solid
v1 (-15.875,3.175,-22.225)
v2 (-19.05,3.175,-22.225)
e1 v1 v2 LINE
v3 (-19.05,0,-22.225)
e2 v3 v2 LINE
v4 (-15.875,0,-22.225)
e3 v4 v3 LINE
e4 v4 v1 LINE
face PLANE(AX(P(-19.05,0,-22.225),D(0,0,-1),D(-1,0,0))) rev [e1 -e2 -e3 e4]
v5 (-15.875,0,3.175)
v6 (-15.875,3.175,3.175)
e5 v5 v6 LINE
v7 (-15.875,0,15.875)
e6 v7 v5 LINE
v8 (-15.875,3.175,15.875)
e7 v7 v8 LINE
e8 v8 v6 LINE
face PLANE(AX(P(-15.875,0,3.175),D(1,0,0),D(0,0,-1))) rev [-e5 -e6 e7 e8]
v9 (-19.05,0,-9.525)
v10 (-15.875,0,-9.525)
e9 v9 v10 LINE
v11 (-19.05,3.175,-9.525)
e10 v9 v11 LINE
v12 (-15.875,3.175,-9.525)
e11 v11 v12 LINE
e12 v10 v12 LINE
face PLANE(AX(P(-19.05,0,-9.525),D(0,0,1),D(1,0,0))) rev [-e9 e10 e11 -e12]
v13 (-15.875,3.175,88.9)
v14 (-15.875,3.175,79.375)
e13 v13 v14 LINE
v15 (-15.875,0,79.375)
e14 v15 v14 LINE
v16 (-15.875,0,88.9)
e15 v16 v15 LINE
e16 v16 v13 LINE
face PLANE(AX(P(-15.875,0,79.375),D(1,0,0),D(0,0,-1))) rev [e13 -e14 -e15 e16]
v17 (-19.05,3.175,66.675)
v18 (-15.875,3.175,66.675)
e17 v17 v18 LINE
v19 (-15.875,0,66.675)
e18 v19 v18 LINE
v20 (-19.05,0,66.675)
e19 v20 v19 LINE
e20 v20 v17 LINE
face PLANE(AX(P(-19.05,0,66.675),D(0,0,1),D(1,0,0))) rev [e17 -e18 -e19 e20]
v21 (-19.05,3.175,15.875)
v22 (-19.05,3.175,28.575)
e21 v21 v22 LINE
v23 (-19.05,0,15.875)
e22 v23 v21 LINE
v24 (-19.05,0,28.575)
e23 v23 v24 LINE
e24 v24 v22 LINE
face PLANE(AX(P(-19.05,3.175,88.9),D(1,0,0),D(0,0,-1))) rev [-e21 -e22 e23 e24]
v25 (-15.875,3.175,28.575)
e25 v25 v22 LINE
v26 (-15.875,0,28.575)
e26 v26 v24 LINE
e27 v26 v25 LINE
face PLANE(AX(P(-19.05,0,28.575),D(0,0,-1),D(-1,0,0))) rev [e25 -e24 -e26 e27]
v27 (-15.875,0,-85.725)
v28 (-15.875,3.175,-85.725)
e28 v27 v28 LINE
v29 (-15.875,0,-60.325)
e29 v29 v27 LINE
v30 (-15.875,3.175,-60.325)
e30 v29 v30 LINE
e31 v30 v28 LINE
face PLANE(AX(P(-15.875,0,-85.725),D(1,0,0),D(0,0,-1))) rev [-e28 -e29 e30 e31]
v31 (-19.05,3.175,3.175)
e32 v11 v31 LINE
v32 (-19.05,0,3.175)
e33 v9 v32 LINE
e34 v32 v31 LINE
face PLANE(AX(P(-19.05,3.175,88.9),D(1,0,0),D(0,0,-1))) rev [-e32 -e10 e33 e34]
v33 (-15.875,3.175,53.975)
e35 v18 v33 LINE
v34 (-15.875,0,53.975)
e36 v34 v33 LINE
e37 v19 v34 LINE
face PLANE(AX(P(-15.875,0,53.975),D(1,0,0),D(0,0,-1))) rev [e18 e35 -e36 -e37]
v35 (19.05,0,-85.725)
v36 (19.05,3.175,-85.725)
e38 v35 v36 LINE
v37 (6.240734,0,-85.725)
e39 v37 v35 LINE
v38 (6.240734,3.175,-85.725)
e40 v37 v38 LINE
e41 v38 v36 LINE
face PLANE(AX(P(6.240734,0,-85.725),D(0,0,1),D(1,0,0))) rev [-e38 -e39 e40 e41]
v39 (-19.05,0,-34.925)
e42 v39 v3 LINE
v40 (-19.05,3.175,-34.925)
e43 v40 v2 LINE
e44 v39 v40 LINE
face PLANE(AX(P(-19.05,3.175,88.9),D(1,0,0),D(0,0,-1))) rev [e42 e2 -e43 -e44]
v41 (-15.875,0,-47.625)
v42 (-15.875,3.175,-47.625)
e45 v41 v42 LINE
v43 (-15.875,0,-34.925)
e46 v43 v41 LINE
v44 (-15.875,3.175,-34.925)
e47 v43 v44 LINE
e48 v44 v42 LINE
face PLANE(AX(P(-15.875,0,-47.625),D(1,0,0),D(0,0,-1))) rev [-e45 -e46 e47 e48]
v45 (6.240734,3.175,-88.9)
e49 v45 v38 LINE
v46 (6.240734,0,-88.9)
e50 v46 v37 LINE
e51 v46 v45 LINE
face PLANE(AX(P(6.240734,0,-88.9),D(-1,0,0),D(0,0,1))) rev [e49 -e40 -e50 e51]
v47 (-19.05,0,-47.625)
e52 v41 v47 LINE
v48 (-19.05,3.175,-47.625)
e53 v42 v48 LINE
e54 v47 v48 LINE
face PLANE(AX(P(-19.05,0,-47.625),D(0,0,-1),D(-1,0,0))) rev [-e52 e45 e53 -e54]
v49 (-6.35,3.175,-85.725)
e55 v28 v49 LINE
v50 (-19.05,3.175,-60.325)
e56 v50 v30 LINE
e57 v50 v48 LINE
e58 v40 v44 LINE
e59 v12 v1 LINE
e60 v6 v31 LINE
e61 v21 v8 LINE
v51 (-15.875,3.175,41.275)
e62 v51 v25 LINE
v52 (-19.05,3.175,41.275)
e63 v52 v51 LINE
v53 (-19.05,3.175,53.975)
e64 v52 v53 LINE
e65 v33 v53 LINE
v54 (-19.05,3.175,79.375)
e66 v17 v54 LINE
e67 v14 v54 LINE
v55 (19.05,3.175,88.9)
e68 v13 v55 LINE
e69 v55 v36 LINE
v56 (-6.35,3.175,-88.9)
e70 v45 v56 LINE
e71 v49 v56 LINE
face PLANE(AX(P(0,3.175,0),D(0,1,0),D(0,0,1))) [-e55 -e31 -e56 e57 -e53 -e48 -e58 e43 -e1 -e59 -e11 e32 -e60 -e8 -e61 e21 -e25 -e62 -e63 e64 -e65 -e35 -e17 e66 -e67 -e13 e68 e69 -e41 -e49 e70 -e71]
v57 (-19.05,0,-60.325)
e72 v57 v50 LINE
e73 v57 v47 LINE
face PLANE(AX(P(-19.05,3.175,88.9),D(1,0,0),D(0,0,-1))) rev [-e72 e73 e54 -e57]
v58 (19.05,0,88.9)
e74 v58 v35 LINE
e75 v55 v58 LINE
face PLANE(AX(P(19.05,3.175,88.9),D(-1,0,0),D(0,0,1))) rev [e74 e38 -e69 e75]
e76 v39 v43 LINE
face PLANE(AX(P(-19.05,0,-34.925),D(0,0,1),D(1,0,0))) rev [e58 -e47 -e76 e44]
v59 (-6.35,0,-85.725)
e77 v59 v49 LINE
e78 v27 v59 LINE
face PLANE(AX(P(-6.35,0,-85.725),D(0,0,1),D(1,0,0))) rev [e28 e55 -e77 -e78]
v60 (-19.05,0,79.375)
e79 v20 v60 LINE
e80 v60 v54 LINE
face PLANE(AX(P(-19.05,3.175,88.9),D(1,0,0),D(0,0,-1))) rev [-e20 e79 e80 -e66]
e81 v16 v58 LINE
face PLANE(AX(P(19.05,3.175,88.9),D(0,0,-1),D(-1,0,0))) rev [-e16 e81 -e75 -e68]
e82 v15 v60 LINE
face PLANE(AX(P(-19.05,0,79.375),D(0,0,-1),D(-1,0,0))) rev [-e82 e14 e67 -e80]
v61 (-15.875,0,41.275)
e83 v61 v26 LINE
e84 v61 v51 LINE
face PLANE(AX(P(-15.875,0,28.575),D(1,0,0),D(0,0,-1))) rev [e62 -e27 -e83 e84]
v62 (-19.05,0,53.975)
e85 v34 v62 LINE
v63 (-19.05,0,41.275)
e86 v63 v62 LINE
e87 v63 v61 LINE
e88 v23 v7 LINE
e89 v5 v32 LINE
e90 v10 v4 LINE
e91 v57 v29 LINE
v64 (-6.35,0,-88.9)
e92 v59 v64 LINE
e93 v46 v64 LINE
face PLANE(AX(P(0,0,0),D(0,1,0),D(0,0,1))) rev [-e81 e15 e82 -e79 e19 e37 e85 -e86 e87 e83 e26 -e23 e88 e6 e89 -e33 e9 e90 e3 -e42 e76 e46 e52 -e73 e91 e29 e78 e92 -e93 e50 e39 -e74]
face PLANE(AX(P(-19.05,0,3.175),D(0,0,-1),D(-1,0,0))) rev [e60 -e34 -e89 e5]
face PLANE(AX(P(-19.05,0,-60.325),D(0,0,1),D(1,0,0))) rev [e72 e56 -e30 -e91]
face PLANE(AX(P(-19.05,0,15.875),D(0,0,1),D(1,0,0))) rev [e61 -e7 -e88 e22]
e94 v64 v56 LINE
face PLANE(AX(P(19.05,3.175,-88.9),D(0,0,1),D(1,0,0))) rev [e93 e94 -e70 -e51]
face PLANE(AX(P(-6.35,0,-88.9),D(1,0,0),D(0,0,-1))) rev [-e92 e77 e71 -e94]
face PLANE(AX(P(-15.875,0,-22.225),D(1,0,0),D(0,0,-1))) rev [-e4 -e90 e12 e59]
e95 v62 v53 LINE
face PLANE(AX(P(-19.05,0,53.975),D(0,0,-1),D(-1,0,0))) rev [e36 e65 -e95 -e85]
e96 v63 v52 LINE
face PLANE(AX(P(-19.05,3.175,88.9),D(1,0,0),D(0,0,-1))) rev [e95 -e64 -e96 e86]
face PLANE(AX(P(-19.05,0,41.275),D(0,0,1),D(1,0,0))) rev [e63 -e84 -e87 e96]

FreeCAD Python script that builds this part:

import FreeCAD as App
import Part
import Sketcher

V = App.Vector
Q = App.Units.Quantity

doc = App.newDocument("Part")
body = doc.addObject("PartDesign::Body", "Body")

# Sketch on XZ plane
sketch1 = body.newObject("Sketcher::SketchObject", "Sketch")
sketch1.AttachmentSupport = (doc.getObject("XZ_Plane"), [""])
sketch1.MapMode = "FlatFace"
sketch1.addGeometry([
    Part.LineSegment(V(-19, -89, 0), V(-19, 89, 0)),
    Part.LineSegment(V(-19, 89, 0), V(19, 89, 0)),
    Part.LineSegment(V(19, 89, 0), V(19, -89, 0)),
    Part.LineSegment(V(19, -89, 0), V(-19, -89, 0)),
], False)
sketch1.addConstraint([
    Sketcher.Constraint("Coincident", 0, 2, 1, 1),
    Sketcher.Constraint("Coincident", 1, 2, 2, 1),
    Sketcher.Constraint("Coincident", 2, 2, 3, 1),
    Sketcher.Constraint("Coincident", 3, 2, 0, 1),
    Sketcher.Constraint("Vertical", 0),
    Sketcher.Constraint("Horizontal", 1),
    Sketcher.Constraint("Vertical", 2),
    Sketcher.Constraint("Horizontal", 3),
    Sketcher.Constraint("Symmetric", 0, 2, 2, 2, -1, 1),
    Sketcher.Constraint("DistanceY", 0, 1, 0, 2, Q("7 in")),
    Sketcher.Constraint("DistanceX", 1, 1, 1, 2, Q("1.5 in")),
])
pad1 = body.newObject("PartDesign::Pad", "Pad")
pad1.Profile = sketch1
pad1.Length = Q("0.125 in")
pad1.Reversed = True

# Sketch on XZ plane
sketch2 = body.newObject("Sketcher::SketchObject", "Sketch001")
sketch2.AttachmentSupport = (doc.getObject("XZ_Plane"), [""])
sketch2.MapMode = "FlatFace"
sketch2.AttachmentOffset = App.Placement(V(0, 0, -0.125 * 25.4), App.Rotation())
sketch2.addGeometry([
    Part.LineSegment(V(-6.3, -85.7, 0), V(-6.3, -88.9, 0)),  # 0
    Part.LineSegment(V(-6.3, -88.9, 0), V(-19.1, -88.9, 0)),  # 1
    Part.LineSegment(V(-19.1, -88.9, 0), V(-19.1, -60.3, 0)),  # 2
    Part.LineSegment(V(-19.1, -60.3, 0), V(-15.9, -60.3, 0)),  # 3
    Part.LineSegment(V(-15.9, -60.3, 0), V(-15.9, -85.7, 0)),  # 4
    Part.LineSegment(V(-15.9, -85.7, 0), V(-6.3, -85.7, 0)),  # 5
    Part.LineSegment(V(-19.1, -22.2, 0), V(-19.1, -9.5, 0)),  # 6
    Part.LineSegment(V(-19.1, -9.5, 0), V(-15.9, -9.5, 0)),  # 7
    Part.LineSegment(V(-15.9, -9.5, 0), V(-15.9, -22.2, 0)),  # 8
    Part.LineSegment(V(-15.9, -22.2, 0), V(-19.1, -22.2, 0)),  # 9
    Part.LineSegment(V(-19.1, -47.6, 0), V(-19.1, -34.9, 0)),  # 10
    Part.LineSegment(V(-19.1, -34.9, 0), V(-15.9, -34.9, 0)),  # 11
    Part.LineSegment(V(-15.9, -34.9, 0), V(-15.9, -47.6, 0)),  # 12
    Part.LineSegment(V(-15.9, -47.6, 0), V(-19.1, -47.6, 0)),  # 13
    Part.LineSegment(V(-19.1, 3.2, 0), V(-19.1, 15.9, 0)),  # 14
    Part.LineSegment(V(-19.1, 15.9, 0), V(-15.9, 15.9, 0)),  # 15
    Part.LineSegment(V(-15.9, 15.9, 0), V(-15.9, 3.2, 0)),  # 16
    Part.LineSegment(V(-15.9, 3.2, 0), V(-19.1, 3.2, 0)),  # 17
    Part.LineSegment(V(-19.1, 28.6, 0), V(-19.1, 41.3, 0)),  # 18
    Part.LineSegment(V(-19.1, 41.3, 0), V(-15.9, 41.3, 0)),  # 19
    Part.LineSegment(V(-15.9, 41.3, 0), V(-15.9, 28.6, 0)),  # 20
    Part.LineSegment(V(-15.9, 28.6, 0), V(-19.1, 28.6, 0)),  # 21
    Part.LineSegment(V(-19.1, 54, 0), V(-19.1, 66.7, 0)),  # 22
    Part.LineSegment(V(-19.1, 66.7, 0), V(-15.9, 66.7, 0)),  # 23
    Part.LineSegment(V(-15.9, 66.7, 0), V(-15.9, 54, 0)),  # 24
    Part.LineSegment(V(-15.9, 54, 0), V(-19.1, 54, 0)),  # 25
    Part.LineSegment(V(-19.1, 79.4, 0), V(-19.1, 88.9, 0)),  # 26
    Part.LineSegment(V(-19.1, 88.9, 0), V(-15.9, 88.9, 0)),  # 27
    Part.LineSegment(V(-15.9, 88.9, 0), V(-15.9, 79.4, 0)),  # 28
    Part.LineSegment(V(-15.9, 79.4, 0), V(-19.1, 79.4, 0)),  # 29
    Part.LineSegment(V(6.2, -88.9, 0), V(6.2, -85.7, 0)),  # 30
    Part.LineSegment(V(6.2, -85.7, 0), V(19.1, -85.7, 0)),  # 31
    Part.LineSegment(V(19.1, -85.7, 0), V(19.1, -88.9, 0)),  # 32
    Part.LineSegment(V(19.1, -88.9, 0), V(6.2, -88.9, 0)),  # 33
], False)
sketch2.addConstraint([
    Sketcher.Constraint("Coincident", 0, 2, 1, 1),
    Sketcher.Constraint("Coincident", 1, 2, 2, 1),
    Sketcher.Constraint("Coincident", 2, 2, 3, 1),
    Sketcher.Constraint("Coincident", 3, 2, 4, 1),
    Sketcher.Constraint("Coincident", 4, 2, 5, 1),
    Sketcher.Constraint("Coincident", 5, 2, 0, 1),
    Sketcher.Constraint("Coincident", 6, 2, 7, 1),
    Sketcher.Constraint("Coincident", 7, 2, 8, 1),
    Sketcher.Constraint("Coincident", 8, 2, 9, 1),
    Sketcher.Constraint("Coincident", 9, 2, 6, 1),
    Sketcher.Constraint("Coincident", 10, 2, 11, 1),
    Sketcher.Constraint("Coincident", 11, 2, 12, 1),
    Sketcher.Constraint("Coincident", 12, 2, 13, 1),
    Sketcher.Constraint("Coincident", 13, 2, 10, 1),
    Sketcher.Constraint("Coincident", 14, 2, 15, 1),
    Sketcher.Constraint("Coincident", 15, 2, 16, 1),
    Sketcher.Constraint("Coincident", 16, 2, 17, 1),
    Sketcher.Constraint("Coincident", 17, 2, 14, 1),
    Sketcher.Constraint("Coincident", 18, 2, 19, 1),
    Sketcher.Constraint("Coincident", 19, 2, 20, 1),
    Sketcher.Constraint("Coincident", 20, 2, 21, 1),
    Sketcher.Constraint("Coincident", 21, 2, 18, 1),
    Sketcher.Constraint("Coincident", 22, 2, 23, 1),
    Sketcher.Constraint("Coincident", 23, 2, 24, 1),
    Sketcher.Constraint("Coincident", 24, 2, 25, 1),
    Sketcher.Constraint("Coincident", 25, 2, 22, 1),
    Sketcher.Constraint("Coincident", 26, 2, 27, 1),
    Sketcher.Constraint("Coincident", 27, 2, 28, 1),
    Sketcher.Constraint("Coincident", 28, 2, 29, 1),
    Sketcher.Constraint("Coincident", 29, 2, 26, 1),
    Sketcher.Constraint("Coincident", 30, 2, 31, 1),
    Sketcher.Constraint("Coincident", 31, 2, 32, 1),
    Sketcher.Constraint("Coincident", 32, 2, 33, 1),
    Sketcher.Constraint("Coincident", 33, 2, 30, 1),
    Sketcher.Constraint("Vertical", 0),
    Sketcher.Constraint("Horizontal", 1),
    Sketcher.Constraint("Vertical", 2),
    Sketcher.Constraint("Horizontal", 3),
    Sketcher.Constraint("Vertical", 4),
    Sketcher.Constraint("Horizontal", 5),
    Sketcher.Constraint("Vertical", 6),
    Sketcher.Constraint("Horizontal", 7),
    Sketcher.Constraint("Vertical", 8),
    Sketcher.Constraint("Horizontal", 9),
    Sketcher.Constraint("Vertical", 10),
    Sketcher.Constraint("Horizontal", 11),
    Sketcher.Constraint("Vertical", 12),
    Sketcher.Constraint("Horizontal", 13),
    Sketcher.Constraint("Vertical", 14),
    Sketcher.Constraint("Horizontal", 15),
    Sketcher.Constraint("Vertical", 16),
    Sketcher.Constraint("Horizontal", 17),
    Sketcher.Constraint("Vertical", 18),
    Sketcher.Constraint("Horizontal", 19),
    Sketcher.Constraint("Vertical", 20),
    Sketcher.Constraint("Horizontal", 21),
    Sketcher.Constraint("Vertical", 22),
    Sketcher.Constraint("Horizontal", 23),
    Sketcher.Constraint("Vertical", 24),
    Sketcher.Constraint("Horizontal", 25),
    Sketcher.Constraint("Vertical", 26),
    Sketcher.Constraint("Horizontal", 27),
    Sketcher.Constraint("Vertical", 28),
    Sketcher.Constraint("Horizontal", 29),
    Sketcher.Constraint("Vertical", 30),
    Sketcher.Constraint("Horizontal", 31),
    Sketcher.Constraint("Vertical", 32),
    Sketcher.Constraint("Horizontal", 33),
    Sketcher.Constraint("Symmetric", 26, 2, 32, 2, -1, 1),
    Sketcher.Constraint("Symmetric", 1, 2, 32, 2, -2),
    Sketcher.Constraint("Horizontal", 5, 2, 30, 2),
    Sketcher.Constraint("Vertical", 2, 2, 6, 2),
    Sketcher.Constraint("Vertical", 4, 2, 7, 2),
    Sketcher.Constraint("Vertical", 9, 2, 10, 2),
    Sketcher.Constraint("Vertical", 8, 2, 11, 2),
    Sketcher.Constraint("Vertical", 13, 2, 14, 2),
    Sketcher.Constraint("Vertical", 12, 2, 15, 2),
    Sketcher.Constraint("Vertical", 17, 2, 18, 2),
    Sketcher.Constraint("Vertical", 16, 2, 19, 2),
    Sketcher.Constraint("Vertical", 21, 2, 22, 2),
    Sketcher.Constraint("Vertical", 20, 2, 23, 2),
    Sketcher.Constraint("Vertical", 24, 2, 27, 2),
    Sketcher.Constraint("Equal", 29, 0),
    Sketcher.Constraint("Equal", 1, 6),
    Sketcher.Constraint("Equal", 8, 10),
    Sketcher.Constraint("Equal", 12, 14),
    Sketcher.Constraint("Equal", 16, 18),
    Sketcher.Constraint("Equal", 20, 22),
    Sketcher.Constraint("Equal", 5, 26),
    Sketcher.Constraint("DistanceY", 4, 2, 4, 1, Q("1 in")),
    Sketcher.Constraint("DistanceX", 1, 2, 1, 1, Q("0.5 in")),
    Sketcher.Constraint("DistanceY", 2, 2, 6, 2, Q("2 in")),
    Sketcher.Constraint("DistanceY", 10, 2, 6, 2, Q("1 in")),
    Sketcher.Constraint("DistanceY", 6, 2, 14, 2, Q("1 in")),
    Sketcher.Constraint("DistanceY", 14, 2, 18, 2, Q("1 in")),
    Sketcher.Constraint("DistanceY", 18, 2, 22, 2, Q("1 in")),
    Sketcher.Constraint("DistanceY", 24, 2, 28, 2, Q("1 in")),
    Sketcher.Constraint("DistanceX", 5, 2, 31, 2, Q("1 in")),
    Sketcher.Constraint("DistanceX", 3, 1, 3, 2, Q("0.125 in")),
    Sketcher.Constraint("DistanceX", 31, 1, 31, 2, Q("12.809266 mm")),
])
pocket1 = body.newObject("PartDesign::Pocket", "Pocket")
pocket1.Profile = sketch2
pocket1.Length = Q("0.125 in")
pocket1.Reversed = True

doc.recompute()
